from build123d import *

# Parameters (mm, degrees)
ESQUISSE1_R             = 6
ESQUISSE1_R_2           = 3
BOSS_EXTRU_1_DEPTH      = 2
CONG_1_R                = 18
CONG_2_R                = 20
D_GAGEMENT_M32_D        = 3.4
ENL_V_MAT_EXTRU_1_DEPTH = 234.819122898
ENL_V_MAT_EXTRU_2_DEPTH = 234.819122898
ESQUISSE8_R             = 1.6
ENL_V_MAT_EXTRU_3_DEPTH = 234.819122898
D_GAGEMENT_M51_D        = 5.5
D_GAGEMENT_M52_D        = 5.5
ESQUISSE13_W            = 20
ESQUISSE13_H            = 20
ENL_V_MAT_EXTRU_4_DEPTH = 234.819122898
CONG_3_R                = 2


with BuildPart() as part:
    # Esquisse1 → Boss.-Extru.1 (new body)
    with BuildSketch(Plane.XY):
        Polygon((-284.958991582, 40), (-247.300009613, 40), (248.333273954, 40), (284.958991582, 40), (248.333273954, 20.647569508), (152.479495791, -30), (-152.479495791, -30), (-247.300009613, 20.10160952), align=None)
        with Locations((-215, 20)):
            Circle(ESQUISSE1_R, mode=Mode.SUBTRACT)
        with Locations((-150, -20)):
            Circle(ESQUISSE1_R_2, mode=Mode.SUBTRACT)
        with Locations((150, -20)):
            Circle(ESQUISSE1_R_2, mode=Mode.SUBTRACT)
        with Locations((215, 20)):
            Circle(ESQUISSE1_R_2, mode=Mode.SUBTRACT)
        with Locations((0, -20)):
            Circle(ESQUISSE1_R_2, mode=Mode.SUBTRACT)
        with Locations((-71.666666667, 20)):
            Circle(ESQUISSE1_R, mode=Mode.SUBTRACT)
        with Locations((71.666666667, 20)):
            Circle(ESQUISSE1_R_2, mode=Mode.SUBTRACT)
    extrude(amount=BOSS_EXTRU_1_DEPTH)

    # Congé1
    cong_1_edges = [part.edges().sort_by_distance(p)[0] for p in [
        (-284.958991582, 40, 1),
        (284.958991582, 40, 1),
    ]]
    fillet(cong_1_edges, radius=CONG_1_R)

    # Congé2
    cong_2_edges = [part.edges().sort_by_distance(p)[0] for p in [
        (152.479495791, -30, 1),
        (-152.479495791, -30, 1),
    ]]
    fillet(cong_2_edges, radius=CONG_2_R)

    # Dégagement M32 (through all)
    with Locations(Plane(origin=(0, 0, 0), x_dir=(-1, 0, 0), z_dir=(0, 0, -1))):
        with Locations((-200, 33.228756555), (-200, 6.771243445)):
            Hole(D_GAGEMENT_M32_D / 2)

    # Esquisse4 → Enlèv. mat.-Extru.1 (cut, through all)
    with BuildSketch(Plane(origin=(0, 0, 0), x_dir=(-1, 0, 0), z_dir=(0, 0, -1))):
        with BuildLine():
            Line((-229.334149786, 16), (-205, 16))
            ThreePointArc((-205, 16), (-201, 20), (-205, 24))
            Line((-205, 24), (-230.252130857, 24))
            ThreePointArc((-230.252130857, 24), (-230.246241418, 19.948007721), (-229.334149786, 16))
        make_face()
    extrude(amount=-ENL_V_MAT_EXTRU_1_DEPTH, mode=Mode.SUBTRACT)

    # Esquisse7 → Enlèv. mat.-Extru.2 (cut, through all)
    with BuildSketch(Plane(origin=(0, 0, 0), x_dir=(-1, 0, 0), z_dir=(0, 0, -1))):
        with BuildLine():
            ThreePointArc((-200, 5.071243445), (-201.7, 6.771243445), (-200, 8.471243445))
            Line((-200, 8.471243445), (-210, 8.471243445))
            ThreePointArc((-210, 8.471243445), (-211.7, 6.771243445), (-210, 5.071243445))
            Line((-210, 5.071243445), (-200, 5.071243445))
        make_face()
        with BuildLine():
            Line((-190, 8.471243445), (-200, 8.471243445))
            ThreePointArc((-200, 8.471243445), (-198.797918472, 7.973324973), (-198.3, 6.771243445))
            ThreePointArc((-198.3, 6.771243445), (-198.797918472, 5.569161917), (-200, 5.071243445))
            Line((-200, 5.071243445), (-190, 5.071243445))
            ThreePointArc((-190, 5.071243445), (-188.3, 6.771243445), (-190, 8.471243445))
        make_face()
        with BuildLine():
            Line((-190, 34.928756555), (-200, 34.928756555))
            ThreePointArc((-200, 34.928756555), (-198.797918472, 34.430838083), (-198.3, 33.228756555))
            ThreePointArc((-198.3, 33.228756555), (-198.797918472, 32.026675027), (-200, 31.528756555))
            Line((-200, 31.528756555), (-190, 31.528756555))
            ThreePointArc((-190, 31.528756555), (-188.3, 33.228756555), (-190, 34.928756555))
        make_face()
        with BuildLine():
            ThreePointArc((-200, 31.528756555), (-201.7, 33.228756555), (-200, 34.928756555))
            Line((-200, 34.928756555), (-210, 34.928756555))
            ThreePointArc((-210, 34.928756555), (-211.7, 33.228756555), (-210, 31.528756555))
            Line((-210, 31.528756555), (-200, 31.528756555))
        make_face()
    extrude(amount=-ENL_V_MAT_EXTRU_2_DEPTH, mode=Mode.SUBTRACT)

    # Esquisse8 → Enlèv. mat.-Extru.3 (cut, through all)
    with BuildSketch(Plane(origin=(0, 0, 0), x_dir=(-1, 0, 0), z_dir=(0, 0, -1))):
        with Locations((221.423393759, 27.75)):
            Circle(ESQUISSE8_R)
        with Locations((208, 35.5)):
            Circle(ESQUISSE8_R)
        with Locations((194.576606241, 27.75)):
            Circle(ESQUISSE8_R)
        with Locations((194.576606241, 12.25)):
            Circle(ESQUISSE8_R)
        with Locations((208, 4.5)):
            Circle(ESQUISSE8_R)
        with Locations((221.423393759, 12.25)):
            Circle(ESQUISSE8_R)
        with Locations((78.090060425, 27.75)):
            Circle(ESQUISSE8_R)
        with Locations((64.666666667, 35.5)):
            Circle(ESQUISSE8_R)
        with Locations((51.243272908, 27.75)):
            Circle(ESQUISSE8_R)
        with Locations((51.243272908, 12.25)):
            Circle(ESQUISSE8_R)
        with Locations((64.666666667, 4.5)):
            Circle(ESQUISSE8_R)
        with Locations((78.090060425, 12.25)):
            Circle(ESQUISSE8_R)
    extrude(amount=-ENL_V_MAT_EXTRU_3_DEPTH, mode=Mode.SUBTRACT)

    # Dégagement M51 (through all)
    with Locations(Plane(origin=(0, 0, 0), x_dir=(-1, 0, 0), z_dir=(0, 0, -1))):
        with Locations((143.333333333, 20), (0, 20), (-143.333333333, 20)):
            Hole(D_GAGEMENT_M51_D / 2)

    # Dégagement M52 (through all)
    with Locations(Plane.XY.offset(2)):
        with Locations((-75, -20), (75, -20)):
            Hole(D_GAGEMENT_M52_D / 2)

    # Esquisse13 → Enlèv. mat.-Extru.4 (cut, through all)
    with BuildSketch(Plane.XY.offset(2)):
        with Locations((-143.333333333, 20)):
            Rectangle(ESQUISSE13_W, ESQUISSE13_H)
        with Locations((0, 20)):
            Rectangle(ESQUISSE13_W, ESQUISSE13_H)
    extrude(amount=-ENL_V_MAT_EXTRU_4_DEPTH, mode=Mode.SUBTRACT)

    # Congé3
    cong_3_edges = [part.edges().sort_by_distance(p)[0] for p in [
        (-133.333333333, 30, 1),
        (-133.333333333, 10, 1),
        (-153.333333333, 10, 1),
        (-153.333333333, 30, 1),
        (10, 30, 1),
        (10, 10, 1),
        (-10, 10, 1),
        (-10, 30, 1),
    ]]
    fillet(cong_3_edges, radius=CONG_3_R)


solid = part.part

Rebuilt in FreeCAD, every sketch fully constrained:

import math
import FreeCAD as App
import Part
import Sketcher

V = App.Vector


def edges_at(feature, points):
    """Names of the edges that pass closest to the given points."""
    edges = feature.Shape.Edges
    near = lambda p: min(range(len(edges)), key=lambda i: edges[i].distToShape(Part.Vertex(*p))[0])
    return sorted({f"Edge{near(p) + 1}" for p in points})


def add_polygon(sketch, points):
    """Adds a closed chain of lines whose ends are joined by coincident constraints."""
    first, n = sketch.GeometryCount, len(points)
    for a, b in zip(points, points[1:] + points[:1]):
        sketch.addGeometry(Part.LineSegment(App.Vector(*a, 0), App.Vector(*b, 0)), False)
    for i in range(n):
        sketch.addConstraint(Sketcher.Constraint("Coincident", first + i, 2, first + (i + 1) % n, 1))

doc = App.newDocument("Part")
body = doc.addObject("PartDesign::Body", "Body")

# Sketch on XY plane
sketch1 = body.newObject("Sketcher::SketchObject", "Sketch")
sketch1.AttachmentSupport = (doc.getObject("XY_Plane"), [""])
sketch1.MapMode = "FlatFace"
add_polygon(sketch1, [(285, 40), (-285, 40), (-247.3, 20.1), (-152.5, -30), (152.5, -30), (248.3, 20.6)])  # lines 0-5
sketch1.addGeometry(Part.Circle(V(150, -20, 0), V(0, 0, 1), 3), False)  # 6
sketch1.addGeometry(Part.Circle(V(0, -20, 0), V(0, 0, 1), 3), False)  # 7
sketch1.addGeometry(Part.Circle(V(-150, -20, 0), V(0, 0, 1), 3), False)  # 8
sketch1.addGeometry(Part.Circle(V(215, 20, 0), V(0, 0, 1), 3), False)  # 9
sketch1.addGeometry(Part.Circle(V(71.7, 20, 0), V(0, 0, 1), 3), False)  # 10
sketch1.addGeometry(Part.Circle(V(-71.7, 20, 0), V(0, 0, 1), 6), False)  # 11
sketch1.addGeometry(Part.Circle(V(-215, 20, 0), V(0, 0, 1), 6), False)  # 12
sketch1.addConstraint([
    Sketcher.Constraint("Horizontal", 0),
    Sketcher.Constraint("Horizontal", 3),
    Sketcher.Constraint("Equal", 6, 7),
    Sketcher.Constraint("Equal", 7, 8),
    Sketcher.Constraint("Equal", 8, 9),
    Sketcher.Constraint("Equal", 9, 10),
    Sketcher.Constraint("Equal", 11, 12),
    Sketcher.Constraint("Symmetric", 6, 3, 8, 3, -2),
    Sketcher.Constraint("Symmetric", 10, 3, 11, 3, -2),
    Sketcher.Constraint("Symmetric", 9, 3, 12, 3, -2),
    Sketcher.Constraint("PointOnObject", 7, 3, -2),
    Sketcher.Constraint("Parallel", 1, 2),
    Sketcher.Constraint("Parallel", 4, 5),
    Sketcher.Constraint("Horizontal", 6, 3, 7, 3),
    Sketcher.Constraint("Horizontal", 9, 3, 10, 3),
    Sketcher.Constraint("Diameter", 6, 6.0),
    Sketcher.Constraint("Diameter", 11, 12.0),
    Sketcher.Constraint("DistanceX", -1, 1, 6, 3, 150.0),
    Sketcher.Constraint("DistanceY", 6, 3, -1, 1, 20.0),
    Sketcher.Constraint("DistanceX", -1, 1, 9, 3, 215.0),
    Sketcher.Constraint("DistanceY", -1, 1, 9, 3, 20.0),
    Sketcher.Constraint("DistanceY", -1, 1, 0, 2, 40.0),
    Sketcher.Constraint("DistanceY", 2, 2, -1, 1, 30.0),
    Sketcher.Constraint("DistanceX", 3, 1, 3, 2, 304.958992),
    Sketcher.Constraint("Distance", 1, 42.59278),
    Sketcher.Constraint("Distance", 4, 108.411822),
    Sketcher.Constraint("DistanceX", 0, 2, 0, 1, 569.917983),
    Sketcher.Constraint("DistanceX", 0, 2, -1, 1, 284.958992),
    Sketcher.Constraint("DistanceX", 1, 2, -1, 1, 247.30001),
    Sketcher.Constraint("DistanceX", 0, 2, 10, 3, 356.625658),
])
pad1 = body.newObject("PartDesign::Pad", "Pad")
pad1.Profile = sketch1
pad1.Length = 2
doc.recompute()

fillet = body.newObject("PartDesign::Fillet", "Fillet")
fillet.Base = (pad1, edges_at(pad1, [(-284.959, 40, 1), (284.959, 40, 1)]))
fillet.Radius = 18
doc.recompute()

fillet2 = body.newObject("PartDesign::Fillet", "Fillet001")
fillet2.Base = (fillet, edges_at(fillet, [(152.479, -30, 1), (-152.479, -30, 1)]))
fillet2.Radius = 20

# Sketch on XY plane
sketch2 = body.newObject("Sketcher::SketchObject", "Sketch001")
sketch2.AttachmentSupport = (doc.getObject("XY_Plane"), [""])
sketch2.MapMode = "FlatFace"
sketch2.addGeometry([
    Part.Circle(V(200, 33.2, 0), V(0, 0, 1), 1.7),
    Part.Circle(V(200, 6.8, 0), V(0, 0, 1), 1.7),
], False)
sketch2.addConstraint([
    Sketcher.Constraint("Equal", 0, 1),
    Sketcher.Constraint("Vertical", 0, 3, 1, 3),
    Sketcher.Constraint("Diameter", 0, 3.4),
    Sketcher.Constraint("DistanceX", -1, 1, 0, 3, 200.0),
    Sketcher.Constraint("DistanceY", -1, 1, 0, 3, 33.228757),
    Sketcher.Constraint("DistanceY", -1, 1, 1, 3, 6.771243),
])
doc.recompute()
hole = body.newObject("PartDesign::Hole", "Hole")
hole.Profile = sketch2
hole.ThreadType = "None"
hole.Diameter = 3.4
hole.DepthType = "ThroughAll"
hole.Reversed = True

# Sketch on XY plane
sketch3 = body.newObject("Sketcher::SketchObject", "Sketch002")
sketch3.AttachmentSupport = (doc.getObject("XY_Plane"), [""])
sketch3.MapMode = "FlatFace"
sketch3.addGeometry([
    Part.LineSegment(V(229.3, 16, 0), V(205, 16, 0)),
    Part.ArcOfCircle(Part.Circle(V(205, 20, 0), V(0, 0, 1), 4), math.radians(90), math.radians(270)),
    Part.LineSegment(V(205, 24, 0), V(230.3, 24, 0)),
    Part.ArcOfCircle(Part.Circle(V(212.4, 22, 0), V(0, 0, 1), 18), math.radians(-19), math.radians(6)),
], False)
sketch3.addConstraint([
    Sketcher.Constraint("Tangent", 0, 2, 1, 2),
    Sketcher.Constraint("Tangent", 1, 1, 2, 1),
    Sketcher.Constraint("Coincident", 2, 2, 3, 2),
    Sketcher.Constraint("Coincident", 3, 1, 0, 1),
    Sketcher.Constraint("Horizontal", 0),
    Sketcher.Constraint("Horizontal", 2),
    Sketcher.Constraint("Radius", 1, 4.0),
    Sketcher.Constraint("Radius", 3, 18.0),
    Sketcher.Constraint("DistanceX", -1, 1, 1, 3, 205.0),
    Sketcher.Constraint("DistanceY", -1, 1, 1, 3, 20.0),
    Sketcher.Constraint("DistanceY", -1, 1, 3, 3, 22.0),
    Sketcher.Constraint("DistanceX", 0, 2, 0, 1, 24.33415),
])
pocket1 = body.newObject("PartDesign::Pocket", "Pocket")
pocket1.Profile = sketch3
pocket1.Type = "ThroughAll"
pocket1.Reversed = True

# Sketch on XY plane
sketch4 = body.newObject("Sketcher::SketchObject", "Sketch003")
sketch4.AttachmentSupport = (doc.getObject("XY_Plane"), [""])
sketch4.MapMode = "FlatFace"
sketch4.addGeometry([
    Part.ArcOfCircle(Part.Circle(V(200, 6.8, 0), V(0, 0, 1), 1.7), math.radians(-90), math.radians(90)),  # 0
    Part.LineSegment(V(200, 8.5, 0), V(210, 8.5, 0)),  # 1
    Part.ArcOfCircle(Part.Circle(V(210, 6.8, 0), V(0, 0, 1), 1.7), math.radians(-90), math.radians(90)),  # 2
    Part.LineSegment(V(210, 5.1, 0), V(200, 5.1, 0)),  # 3
    Part.LineSegment(V(190, 8.5, 0), V(200, 8.5, 0)),  # 4
    Part.ArcOfCircle(Part.Circle(V(200, 6.8, 0), V(0, 0, 1), 1.7), math.radians(90), math.radians(180)),  # 5
    Part.ArcOfCircle(Part.Circle(V(200, 6.8, 0), V(0, 0, 1), 1.7), math.radians(180), math.radians(270)),  # 6
    Part.LineSegment(V(200, 5.1, 0), V(190, 5.1, 0)),  # 7
    Part.ArcOfCircle(Part.Circle(V(190, 6.8, 0), V(0, 0, 1), 1.7), math.radians(90), math.radians(270)),  # 8
    Part.LineSegment(V(190, 34.9, 0), V(200, 34.9, 0)),  # 9
    Part.ArcOfCircle(Part.Circle(V(200, 33.2, 0), V(0, 0, 1), 1.7), math.radians(90), math.radians(180)),  # 10
    Part.ArcOfCircle(Part.Circle(V(200, 33.2, 0), V(0, 0, 1), 1.7), math.radians(180), math.radians(270)),  # 11
    Part.LineSegment(V(200, 31.5, 0), V(190, 31.5, 0)),  # 12
    Part.ArcOfCircle(Part.Circle(V(190, 33.2, 0), V(0, 0, 1), 1.7), math.radians(90), math.radians(270)),  # 13
    Part.ArcOfCircle(Part.Circle(V(200, 33.2, 0), V(0, 0, 1), 1.7), math.radians(-90), math.radians(90)),  # 14
    Part.LineSegment(V(200, 34.9, 0), V(210, 34.9, 0)),  # 15
    Part.ArcOfCircle(Part.Circle(V(210, 33.2, 0), V(0, 0, 1), 1.7), math.radians(-90), math.radians(90)),  # 16
    Part.LineSegment(V(210, 31.5, 0), V(200, 31.5, 0)),  # 17
], False)
sketch4.addConstraint([
    Sketcher.Constraint("Tangent", 0, 2, 1, 1),
    Sketcher.Constraint("Tangent", 1, 2, 2, 2),
    Sketcher.Constraint("Tangent", 2, 1, 3, 1),
    Sketcher.Constraint("Tangent", 3, 2, 0, 1),
    Sketcher.Constraint("Tangent", 4, 2, 5, 1),
    Sketcher.Constraint("Tangent", 5, 2, 6, 1),
    Sketcher.Constraint("Tangent", 6, 2, 7, 1),
    Sketcher.Constraint("Tangent", 7, 2, 8, 2),
    Sketcher.Constraint("Tangent", 8, 1, 4, 1),
    Sketcher.Constraint("Tangent", 9, 2, 10, 1),
    Sketcher.Constraint("Tangent", 10, 2, 11, 1),
    Sketcher.Constraint("Tangent", 11, 2, 12, 1),
    Sketcher.Constraint("Tangent", 12, 2, 13, 2),
    Sketcher.Constraint("Tangent", 13, 1, 9, 1),
    Sketcher.Constraint("Tangent", 14, 2, 15, 1),
    Sketcher.Constraint("Tangent", 15, 2, 16, 2),
    Sketcher.Constraint("Tangent", 16, 1, 17, 1),
    Sketcher.Constraint("Tangent", 17, 2, 14, 1),
    Sketcher.Constraint("Horizontal", 1),
    Sketcher.Constraint("Horizontal", 3),
    Sketcher.Constraint("Horizontal", 4),
    Sketcher.Constraint("Horizontal", 7),
    Sketcher.Constraint("Horizontal", 9),
    Sketcher.Constraint("Horizontal", 12),
    Sketcher.Constraint("Horizontal", 15),
    Sketcher.Constraint("Horizontal", 17),
    Sketcher.Constraint("Coincident", 5, 3, 0, 3),
    Sketcher.Constraint("Coincident", 14, 3, 10, 3),
    Sketcher.Constraint("Coincident", 6, 2, 3, 2),
    Sketcher.Constraint("Coincident", 17, 2, 11, 2),
    Sketcher.Constraint("Equal", 8, 10),
    Sketcher.Constraint("Horizontal", 8, 3, 5, 2),
    Sketcher.Constraint("Horizontal", 16, 3, 10, 2),
    Sketcher.Constraint("Vertical", 6, 3, 10, 3),
    Sketcher.Constraint("Vertical", 8, 3, 13, 3),
    Sketcher.Constraint("Vertical", 2, 3, 16, 3),
    Sketcher.Constraint("Equal", 3, 4),
    Sketcher.Constraint("Radius", 0, 1.7),
    Sketcher.Constraint("DistanceX", 1, 1, 1, 2, 10.0),
    Sketcher.Constraint("DistanceX", -1, 1, 0, 3, 200.0),
    Sketcher.Constraint("DistanceY", -1, 1, 0, 3, 6.771243),
    Sketcher.Constraint("DistanceY", -1, 1, 10, 3, 33.228757),
])
pocket2 = body.newObject("PartDesign::Pocket", "Pocket001")
pocket2.Profile = sketch4
pocket2.Type = "ThroughAll"
pocket2.Reversed = True

# Sketch on XY plane
sketch5 = body.newObject("Sketcher::SketchObject", "Sketch004")
sketch5.AttachmentSupport = (doc.getObject("XY_Plane"), [""])
sketch5.MapMode = "FlatFace"
sketch5.addGeometry([
    Part.Circle(V(-221.4, 27.8, 0), V(0, 0, 1), 1.6),  # 0
    Part.Circle(V(-208, 35.5, 0), V(0, 0, 1), 1.6),  # 1
    Part.Circle(V(-194.6, 27.8, 0), V(0, 0, 1), 1.6),  # 2
    Part.Circle(V(-194.6, 12.2, 0), V(0, 0, 1), 1.6),  # 3
    Part.Circle(V(-208, 4.5, 0), V(0, 0, 1), 1.6),  # 4
    Part.Circle(V(-221.4, 12.2, 0), V(0, 0, 1), 1.6),  # 5
    Part.Circle(V(-78.1, 27.8, 0), V(0, 0, 1), 1.6),  # 6
    Part.Circle(V(-64.7, 35.5, 0), V(0, 0, 1), 1.6),  # 7
    Part.Circle(V(-51.2, 27.8, 0), V(0, 0, 1), 1.6),  # 8
    Part.Circle(V(-51.2, 12.2, 0), V(0, 0, 1), 1.6),  # 9
    Part.Circle(V(-64.7, 4.5, 0), V(0, 0, 1), 1.6),  # 10
    Part.Circle(V(-78.1, 12.2, 0), V(0, 0, 1), 1.6),  # 11
], False)
sketch5.addConstraint([
    Sketcher.Constraint("Equal", 0, 1),
    Sketcher.Constraint("Equal", 1, 2),
    Sketcher.Constraint("Equal", 2, 3),
    Sketcher.Constraint("Equal", 3, 4),
    Sketcher.Constraint("Equal", 4, 5),
    Sketcher.Constraint("Equal", 5, 6),
    Sketcher.Constraint("Equal", 6, 7),
    Sketcher.Constraint("Equal", 7, 8),
    Sketcher.Constraint("Equal", 8, 9),
    Sketcher.Constraint("Equal", 9, 10),
    Sketcher.Constraint("Equal", 10, 11),
    Sketcher.Constraint("Horizontal", 0, 3, 2, 3),
    Sketcher.Constraint("Horizontal", 3, 3, 5, 3),
    Sketcher.Constraint("Horizontal", 2, 3, 6, 3),
    Sketcher.Constraint("Horizontal", 1, 3, 7, 3),
    Sketcher.Constraint("Horizontal", 6, 3, 8, 3),
    Sketcher.Constraint("Horizontal", 5, 3, 9, 3),
    Sketcher.Constraint("Horizontal", 4, 3, 10, 3),
    Sketcher.Constraint("Horizontal", 9, 3, 11, 3),
    Sketcher.Constraint("Vertical", 2, 3, 3, 3),
    Sketcher.Constraint("Vertical", 1, 3, 4, 3),
    Sketcher.Constraint("Vertical", 0, 3, 5, 3),
    Sketcher.Constraint("Vertical", 8, 3, 9, 3),
    Sketcher.Constraint("Vertical", 7, 3, 10, 3),
    Sketcher.Constraint("Vertical", 6, 3, 11, 3),
    Sketcher.Constraint("Diameter", 0, 3.2),
    Sketcher.Constraint("DistanceX", 1, 3, -1, 1, 208.0),
    Sketcher.Constraint("DistanceY", 4, 3, 1, 3, 31.0),
    Sketcher.Constraint("DistanceY", -1, 1, 1, 3, 35.5),
    Sketcher.Constraint("DistanceY", 3, 3, 2, 3, 15.5),
    Sketcher.Constraint("DistanceY", -1, 1, 0, 3, 27.75),
    Sketcher.Constraint("DistanceX", 6, 3, -1, 1, 78.09006),
    Sketcher.Constraint("DistanceX", 2, 3, 7, 3, 129.90994),
    Sketcher.Constraint("DistanceX", 0, 3, -1, 1, 221.423394),
    Sketcher.Constraint("DistanceX", 2, 3, -1, 1, 194.576606),
    Sketcher.Constraint("DistanceX", 8, 3, -1, 1, 51.243273),
])
pocket3 = body.newObject("PartDesign::Pocket", "Pocket002")
pocket3.Profile = sketch5
pocket3.Type = "ThroughAll"
pocket3.Reversed = True

# Sketch on XY plane
sketch6 = body.newObject("Sketcher::SketchObject", "Sketch005")
sketch6.AttachmentSupport = (doc.getObject("XY_Plane"), [""])
sketch6.MapMode = "FlatFace"
sketch6.addGeometry([
    Part.Circle(V(-143.3, 20, 0), V(0, 0, 1), 2.8),
    Part.Circle(V(0, 20, 0), V(0, 0, 1), 2.8),
    Part.Circle(V(143.3, 20, 0), V(0, 0, 1), 2.8),
], False)
sketch6.addConstraint([
    Sketcher.Constraint("Equal", 0, 1),
    Sketcher.Constraint("Equal", 1, 2),
    Sketcher.Constraint("Symmetric", 0, 3, 2, 3, -2),
    Sketcher.Constraint("PointOnObject", 1, 3, -2),
    Sketcher.Constraint("Horizontal", 0, 3, 1, 3),
    Sketcher.Constraint("Diameter", 0, 5.5),
    Sketcher.Constraint("DistanceY", -1, 1, 0, 3, 20.0),
    Sketcher.Constraint("DistanceX", 0, 3, -1, 1, 143.333333),
])
doc.recompute()
hole2 = body.newObject("PartDesign::Hole", "Hole001")
hole2.Profile = sketch6
hole2.ThreadType = "None"
hole2.Diameter = 5.5
hole2.DepthType = "ThroughAll"
hole2.Reversed = True

# Sketch on XY plane
sketch7 = body.newObject("Sketcher::SketchObject", "Sketch006")
sketch7.AttachmentSupport = (doc.getObject("XY_Plane"), [""])
sketch7.MapMode = "FlatFace"
sketch7.AttachmentOffset = App.Placement(V(0, 0, 2), App.Rotation())
sketch7.addGeometry([
    Part.Circle(V(-75, -20, 0), V(0, 0, 1), 2.8),
    Part.Circle(V(75, -20, 0), V(0, 0, 1), 2.8),
], False)
sketch7.addConstraint([
    Sketcher.Constraint("Equal", 0, 1),
    Sketcher.Constraint("Symmetric", 0, 3, 1, 3, -2),
    Sketcher.Constraint("Diameter", 0, 5.5),
    Sketcher.Constraint("DistanceX", 0, 3, -1, 1, 75.0),
    Sketcher.Constraint("DistanceY", 0, 3, -1, 1, 20.0),
])
doc.recompute()
hole3 = body.newObject("PartDesign::Hole", "Hole002")
hole3.Profile = sketch7
hole3.ThreadType = "None"
hole3.Diameter = 5.5
hole3.DepthType = "ThroughAll"

# Sketch on XY plane
sketch8 = body.newObject("Sketcher::SketchObject", "Sketch007")
sketch8.AttachmentSupport = (doc.getObject("XY_Plane"), [""])
sketch8.MapMode = "FlatFace"
sketch8.AttachmentOffset = App.Placement(V(0, 0, 2), App.Rotation())
add_polygon(sketch8, [(-153, 30), (-153, 10), (-133, 10), (-133, 30)])  # lines 0-3
add_polygon(sketch8, [(-10, 30), (-10, 10), (10, 10), (10, 30)])  # lines 4-7
sketch8.addConstraint([
    Sketcher.Constraint("Vertical", 0),
    Sketcher.Constraint("Horizontal", 1),
    Sketcher.Constraint("Vertical", 2),
    Sketcher.Constraint("Horizontal", 3),
    Sketcher.Constraint("Vertical", 4),
    Sketcher.Constraint("Horizontal", 5),
    Sketcher.Constraint("Vertical", 6),
    Sketcher.Constraint("Horizontal", 7),
    Sketcher.Constraint("Horizontal", 1, 2, 4, 2),
    Sketcher.Constraint("Horizontal", 3, 2, 6, 2),
    Sketcher.Constraint("Equal", 3, 5),
    Sketcher.Constraint("Equal", 7, 0),
    Sketcher.Constraint("DistanceX", 1, 1, 1, 2, 20.0),
    Sketcher.Constraint("DistanceY", -1, 1, 0, 2, 10.0),
    Sketcher.Constraint("DistanceX", 4, 2, -1, 1, 10.0),
    Sketcher.Constraint("DistanceX", 0, 2, -1, 1, 153.333333),
])
pocket4 = body.newObject("PartDesign::Pocket", "Pocket003")
pocket4.Profile = sketch8
pocket4.Type = "ThroughAll"
doc.recompute()

fillet3 = body.newObject("PartDesign::Fillet", "Fillet002")
fillet3.Base = (pocket4, edges_at(pocket4, [
    (-133.333, 30, 1),
    (-133.333, 10, 1),
    (-153.333, 10, 1),
    (-153.333, 30, 1),
    (10, 30, 1),
    (10, 10, 1),
    (-10, 10, 1),
    (-10, 30, 1),
]))
fillet3.Radius = 2

doc.recompute()
